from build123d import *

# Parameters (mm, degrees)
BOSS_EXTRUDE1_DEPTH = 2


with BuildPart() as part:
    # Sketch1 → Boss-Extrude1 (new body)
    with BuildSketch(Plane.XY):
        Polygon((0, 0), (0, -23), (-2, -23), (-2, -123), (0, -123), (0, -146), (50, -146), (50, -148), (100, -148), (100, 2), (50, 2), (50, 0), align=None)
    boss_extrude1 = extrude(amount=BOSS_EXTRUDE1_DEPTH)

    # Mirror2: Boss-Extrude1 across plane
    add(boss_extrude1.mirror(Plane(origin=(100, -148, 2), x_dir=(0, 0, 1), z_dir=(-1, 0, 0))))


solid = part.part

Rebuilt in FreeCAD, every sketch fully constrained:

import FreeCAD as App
import Part
import Sketcher

V = App.Vector
Q = App.Units.Quantity

doc = App.newDocument("Part")
params = doc.addObject("Spreadsheet::Sheet", "Params")
for row, (alias, value) in enumerate([
    ("sketch1_width", "2 mm"),
    ("sketch1_width2", "50 mm"),
    ("sketch1_height", "23 mm"),
    ("sketch1_height2", "100 mm"),
    ("pad1_length", "2 mm"),
], start=1):
    params.set(f"A{row}", alias)
    params.set(f"B{row}", "=" + value)
    params.setAlias(f"B{row}", alias)

body = doc.addObject("PartDesign::Body", "Body")

sketch1 = body.newObject("Sketcher::SketchObject", "Sketch")
sketch1.AttachmentSupport = (doc.getObject("XY_Plane"), [""])
sketch1.MapMode = "FlatFace"
sketch1.addGeometry(Part.LineSegment(V(0, 0, 0), V(0, -23, 0)), False)
sketch1.addGeometry(Part.LineSegment(V(0, -23, 0), V(-2, -23, 0)), False)
sketch1.addGeometry(Part.LineSegment(V(-2, -23, 0), V(-2, -123, 0)), False)
sketch1.addGeometry(Part.LineSegment(V(-2, -123, 0), V(0, -123, 0)), False)
sketch1.addGeometry(Part.LineSegment(V(0, -123, 0), V(0, -146, 0)), False)
sketch1.addGeometry(Part.LineSegment(V(0, -146, 0), V(50, -146, 0)), False)
sketch1.addGeometry(Part.LineSegment(V(50, -146, 0), V(50, -148, 0)), False)
sketch1.addGeometry(Part.LineSegment(V(50, -148, 0), V(100, -148, 0)), False)
sketch1.addGeometry(Part.LineSegment(V(100, -148, 0), V(100, 2, 0)), False)
sketch1.addGeometry(Part.LineSegment(V(100, 2, 0), V(50, 2, 0)), False)
sketch1.addGeometry(Part.LineSegment(V(50, 2, 0), V(50, 0, 0)), False)
sketch1.addGeometry(Part.LineSegment(V(50, 0, 0), V(0, 0, 0)), False)
sketch1.addConstraint(Sketcher.Constraint("Coincident", 0, 2, 1, 1))
sketch1.addConstraint(Sketcher.Constraint("Coincident", 1, 2, 2, 1))
sketch1.addConstraint(Sketcher.Constraint("Coincident", 2, 2, 3, 1))
sketch1.addConstraint(Sketcher.Constraint("Coincident", 3, 2, 4, 1))
sketch1.addConstraint(Sketcher.Constraint("Coincident", 4, 2, 5, 1))
sketch1.addConstraint(Sketcher.Constraint("Coincident", 5, 2, 6, 1))
sketch1.addConstraint(Sketcher.Constraint("Coincident", 6, 2, 7, 1))
sketch1.addConstraint(Sketcher.Constraint("Coincident", 7, 2, 8, 1))
sketch1.addConstraint(Sketcher.Constraint("Coincident", 8, 2, 9, 1))
sketch1.addConstraint(Sketcher.Constraint("Coincident", 9, 2, 10, 1))
sketch1.addConstraint(Sketcher.Constraint("Coincident", 10, 2, 11, 1))
sketch1.addConstraint(Sketcher.Constraint("Coincident", 11, 2, 0, 1))
sketch1.addConstraint(Sketcher.Constraint("Vertical", 0))
sketch1.addConstraint(Sketcher.Constraint("Horizontal", 1))
sketch1.addConstraint(Sketcher.Constraint("Vertical", 2))
sketch1.addConstraint(Sketcher.Constraint("Horizontal", 3))
sketch1.addConstraint(Sketcher.Constraint("Vertical", 4))
sketch1.addConstraint(Sketcher.Constraint("Horizontal", 5))
sketch1.addConstraint(Sketcher.Constraint("Vertical", 6))
sketch1.addConstraint(Sketcher.Constraint("Horizontal", 7))
sketch1.addConstraint(Sketcher.Constraint("Vertical", 8))
sketch1.addConstraint(Sketcher.Constraint("Horizontal", 9))
sketch1.addConstraint(Sketcher.Constraint("Vertical", 10))
sketch1.addConstraint(Sketcher.Constraint("Horizontal", 11))
sketch1.addConstraint(Sketcher.Constraint("Coincident", 11, 2, -1, 1))
sketch1.addConstraint(Sketcher.Constraint("PointOnObject", 3, 2, -2))
sketch1.addConstraint(Sketcher.Constraint("Vertical", 6, 2, 9, 2))
sketch1.addConstraint(Sketcher.Constraint("Equal", 5, 7))
sketch1.addConstraint(Sketcher.Constraint("Equal", 0, 4))
sketch1.addConstraint(Sketcher.Constraint("Equal", 3, 6))
sketch1.addConstraint(Sketcher.Constraint("Equal", 6, 10))
sketch1.addConstraint(Sketcher.Constraint("DistanceX", 1, 2, 1, 1, Q("2 mm")))
sketch1.addConstraint(Sketcher.Constraint("DistanceX", 5, 1, 5, 2, Q("50 mm")))
sketch1.addConstraint(Sketcher.Constraint("DistanceY", 0, 2, 0, 1, Q("23 mm")))
sketch1.addConstraint(Sketcher.Constraint("DistanceY", 2, 2, 2, 1, Q("100 mm")))
sketch1.setExpression("Constraints[31]", "Params.sketch1_width")
sketch1.setExpression("Constraints[32]", "Params.sketch1_width2")
sketch1.setExpression("Constraints[33]", "Params.sketch1_height")
sketch1.setExpression("Constraints[34]", "Params.sketch1_height2")
pad1 = body.newObject("PartDesign::Pad", "Pad")
pad1.Profile = sketch1
pad1.setExpression("Length", "Params.pad1_length")
doc.recompute()

datumplane = body.newObject("PartDesign::Plane", "DatumPlane")
datumplane.AttachmentSupport = (doc.getObject("YZ_Plane"), [""])
datumplane.MapMode = "FlatFace"
datumplane.AttachmentOffset = App.Placement(V(0, 0, 100), App.Rotation())
mirrored = body.newObject("PartDesign::Mirrored", "Mirrored")
mirrored.Originals = [pad1]
mirrored.MirrorPlane = (datumplane, [""])
body.Tip = mirrored

doc.recompute()
